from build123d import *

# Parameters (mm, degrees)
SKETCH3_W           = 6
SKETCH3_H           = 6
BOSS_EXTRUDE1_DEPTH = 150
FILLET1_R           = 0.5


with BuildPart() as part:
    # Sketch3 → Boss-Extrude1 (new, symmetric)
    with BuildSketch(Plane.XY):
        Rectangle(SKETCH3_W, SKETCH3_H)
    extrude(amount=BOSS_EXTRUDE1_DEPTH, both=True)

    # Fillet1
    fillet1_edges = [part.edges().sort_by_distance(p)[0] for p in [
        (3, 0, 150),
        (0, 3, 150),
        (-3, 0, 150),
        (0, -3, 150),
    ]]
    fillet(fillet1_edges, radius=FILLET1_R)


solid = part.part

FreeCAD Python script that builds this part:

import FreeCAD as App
import Part
import Sketcher

V = App.Vector
Q = App.Units.Quantity


def edges_at(feature, points):
    """Names of the edges that pass closest to the given points."""
    edges = feature.Shape.Edges
    near = lambda p: min(range(len(edges)), key=lambda i: edges[i].distToShape(Part.Vertex(*p))[0])
    return sorted({f"Edge{near(p) + 1}" for p in points})


def add_polygon(sketch, points):
    """Adds a closed chain of lines whose ends are joined by coincident constraints."""
    first, n = sketch.GeometryCount, len(points)
    for a, b in zip(points, points[1:] + points[:1]):
        sketch.addGeometry(Part.LineSegment(App.Vector(*a, 0), App.Vector(*b, 0)), False)
    for i in range(n):
        sketch.addConstraint(Sketcher.Constraint("Coincident", first + i, 2, first + (i + 1) % n, 1))

doc = App.newDocument("Part")
params = doc.addObject("Spreadsheet::Sheet", "Params")
for row, (alias, value) in enumerate([
    ("sketch1_width", "6 mm"),
    ("pad1_length", "300 mm"),
    ("fillet_radius", "0.5 mm"),
], start=1):
    params.set(f"A{row}", alias)
    params.set(f"B{row}", "=" + value)
    params.setAlias(f"B{row}", alias)

body = doc.addObject("PartDesign::Body", "Body")

# Sketch on XY plane
sketch1 = body.newObject("Sketcher::SketchObject", "Sketch")
sketch1.AttachmentSupport = (doc.getObject("XY_Plane"), [""])
sketch1.MapMode = "FlatFace"
add_polygon(sketch1, [(-3, 3), (-3, -3), (3, -3), (3, 3)])  # lines 0-3
sketch1.addConstraint(Sketcher.Constraint("Vertical", 0))
sketch1.addConstraint(Sketcher.Constraint("Horizontal", 1))
sketch1.addConstraint(Sketcher.Constraint("Vertical", 2))
sketch1.addConstraint(Sketcher.Constraint("Horizontal", 3))
sketch1.addConstraint(Sketcher.Constraint("Symmetric", 0, 2, 2, 2, -1, 1))
sketch1.addConstraint(Sketcher.Constraint("Equal", 3, 0))
sketch1.addConstraint(Sketcher.Constraint("DistanceX", 1, 1, 1, 2, Q("6 mm")))
sketch1.setExpression("Constraints[10]", "Params.sketch1_width")
pad1 = body.newObject("PartDesign::Pad", "Pad")
pad1.Profile = sketch1
pad1.setExpression("Length", "Params.pad1_length")
pad1.Midplane = True
doc.recompute()

fillet = body.newObject("PartDesign::Fillet", "Fillet")
fillet.Base = (pad1, edges_at(pad1, [
    (3, 0, 150),
    (0, 3, 150),
    (-3, 0, 150),
    (0, -3, 150),
]))
fillet.setExpression("Radius", "Params.fillet_radius")

doc.recompute()
